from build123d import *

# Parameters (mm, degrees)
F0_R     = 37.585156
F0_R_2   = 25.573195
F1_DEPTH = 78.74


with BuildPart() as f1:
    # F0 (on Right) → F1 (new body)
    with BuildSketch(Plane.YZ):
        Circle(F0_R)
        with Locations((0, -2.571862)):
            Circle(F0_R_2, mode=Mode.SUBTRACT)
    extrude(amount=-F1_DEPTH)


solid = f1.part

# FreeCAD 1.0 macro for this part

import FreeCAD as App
import Part
import Sketcher

V = App.Vector
Q = App.Units.Quantity

doc = App.newDocument("Part")
body = doc.addObject("PartDesign::Body", "Body")

# Sketch on YZ plane
sketch1 = body.newObject("Sketcher::SketchObject", "Sketch")
sketch1.AttachmentSupport = (doc.getObject("YZ_Plane"), [""])
sketch1.MapMode = "FlatFace"
sketch1.addGeometry([
    Part.Circle(V(0, 0, 0), V(0, 0, 1), 38),
    Part.Circle(V(0, -3, 0), V(0, 0, 1), 26),
], False)
sketch1.addConstraint([
    Sketcher.Constraint("Coincident", 0, 3, -1, 1),
    Sketcher.Constraint("PointOnObject", 1, 3, -2),
    Sketcher.Constraint("Diameter", 0, 75.170312),
    Sketcher.Constraint("Diameter", 1, 51.14639),
    Sketcher.Constraint("DistanceY", 1, 3, -1, 1, 2.571862),
])
pad1 = body.newObject("PartDesign::Pad", "Pad")
pad1.Profile = sketch1
pad1.Length = Q("3.1 in")
pad1.Reversed = True

doc.recompute()
